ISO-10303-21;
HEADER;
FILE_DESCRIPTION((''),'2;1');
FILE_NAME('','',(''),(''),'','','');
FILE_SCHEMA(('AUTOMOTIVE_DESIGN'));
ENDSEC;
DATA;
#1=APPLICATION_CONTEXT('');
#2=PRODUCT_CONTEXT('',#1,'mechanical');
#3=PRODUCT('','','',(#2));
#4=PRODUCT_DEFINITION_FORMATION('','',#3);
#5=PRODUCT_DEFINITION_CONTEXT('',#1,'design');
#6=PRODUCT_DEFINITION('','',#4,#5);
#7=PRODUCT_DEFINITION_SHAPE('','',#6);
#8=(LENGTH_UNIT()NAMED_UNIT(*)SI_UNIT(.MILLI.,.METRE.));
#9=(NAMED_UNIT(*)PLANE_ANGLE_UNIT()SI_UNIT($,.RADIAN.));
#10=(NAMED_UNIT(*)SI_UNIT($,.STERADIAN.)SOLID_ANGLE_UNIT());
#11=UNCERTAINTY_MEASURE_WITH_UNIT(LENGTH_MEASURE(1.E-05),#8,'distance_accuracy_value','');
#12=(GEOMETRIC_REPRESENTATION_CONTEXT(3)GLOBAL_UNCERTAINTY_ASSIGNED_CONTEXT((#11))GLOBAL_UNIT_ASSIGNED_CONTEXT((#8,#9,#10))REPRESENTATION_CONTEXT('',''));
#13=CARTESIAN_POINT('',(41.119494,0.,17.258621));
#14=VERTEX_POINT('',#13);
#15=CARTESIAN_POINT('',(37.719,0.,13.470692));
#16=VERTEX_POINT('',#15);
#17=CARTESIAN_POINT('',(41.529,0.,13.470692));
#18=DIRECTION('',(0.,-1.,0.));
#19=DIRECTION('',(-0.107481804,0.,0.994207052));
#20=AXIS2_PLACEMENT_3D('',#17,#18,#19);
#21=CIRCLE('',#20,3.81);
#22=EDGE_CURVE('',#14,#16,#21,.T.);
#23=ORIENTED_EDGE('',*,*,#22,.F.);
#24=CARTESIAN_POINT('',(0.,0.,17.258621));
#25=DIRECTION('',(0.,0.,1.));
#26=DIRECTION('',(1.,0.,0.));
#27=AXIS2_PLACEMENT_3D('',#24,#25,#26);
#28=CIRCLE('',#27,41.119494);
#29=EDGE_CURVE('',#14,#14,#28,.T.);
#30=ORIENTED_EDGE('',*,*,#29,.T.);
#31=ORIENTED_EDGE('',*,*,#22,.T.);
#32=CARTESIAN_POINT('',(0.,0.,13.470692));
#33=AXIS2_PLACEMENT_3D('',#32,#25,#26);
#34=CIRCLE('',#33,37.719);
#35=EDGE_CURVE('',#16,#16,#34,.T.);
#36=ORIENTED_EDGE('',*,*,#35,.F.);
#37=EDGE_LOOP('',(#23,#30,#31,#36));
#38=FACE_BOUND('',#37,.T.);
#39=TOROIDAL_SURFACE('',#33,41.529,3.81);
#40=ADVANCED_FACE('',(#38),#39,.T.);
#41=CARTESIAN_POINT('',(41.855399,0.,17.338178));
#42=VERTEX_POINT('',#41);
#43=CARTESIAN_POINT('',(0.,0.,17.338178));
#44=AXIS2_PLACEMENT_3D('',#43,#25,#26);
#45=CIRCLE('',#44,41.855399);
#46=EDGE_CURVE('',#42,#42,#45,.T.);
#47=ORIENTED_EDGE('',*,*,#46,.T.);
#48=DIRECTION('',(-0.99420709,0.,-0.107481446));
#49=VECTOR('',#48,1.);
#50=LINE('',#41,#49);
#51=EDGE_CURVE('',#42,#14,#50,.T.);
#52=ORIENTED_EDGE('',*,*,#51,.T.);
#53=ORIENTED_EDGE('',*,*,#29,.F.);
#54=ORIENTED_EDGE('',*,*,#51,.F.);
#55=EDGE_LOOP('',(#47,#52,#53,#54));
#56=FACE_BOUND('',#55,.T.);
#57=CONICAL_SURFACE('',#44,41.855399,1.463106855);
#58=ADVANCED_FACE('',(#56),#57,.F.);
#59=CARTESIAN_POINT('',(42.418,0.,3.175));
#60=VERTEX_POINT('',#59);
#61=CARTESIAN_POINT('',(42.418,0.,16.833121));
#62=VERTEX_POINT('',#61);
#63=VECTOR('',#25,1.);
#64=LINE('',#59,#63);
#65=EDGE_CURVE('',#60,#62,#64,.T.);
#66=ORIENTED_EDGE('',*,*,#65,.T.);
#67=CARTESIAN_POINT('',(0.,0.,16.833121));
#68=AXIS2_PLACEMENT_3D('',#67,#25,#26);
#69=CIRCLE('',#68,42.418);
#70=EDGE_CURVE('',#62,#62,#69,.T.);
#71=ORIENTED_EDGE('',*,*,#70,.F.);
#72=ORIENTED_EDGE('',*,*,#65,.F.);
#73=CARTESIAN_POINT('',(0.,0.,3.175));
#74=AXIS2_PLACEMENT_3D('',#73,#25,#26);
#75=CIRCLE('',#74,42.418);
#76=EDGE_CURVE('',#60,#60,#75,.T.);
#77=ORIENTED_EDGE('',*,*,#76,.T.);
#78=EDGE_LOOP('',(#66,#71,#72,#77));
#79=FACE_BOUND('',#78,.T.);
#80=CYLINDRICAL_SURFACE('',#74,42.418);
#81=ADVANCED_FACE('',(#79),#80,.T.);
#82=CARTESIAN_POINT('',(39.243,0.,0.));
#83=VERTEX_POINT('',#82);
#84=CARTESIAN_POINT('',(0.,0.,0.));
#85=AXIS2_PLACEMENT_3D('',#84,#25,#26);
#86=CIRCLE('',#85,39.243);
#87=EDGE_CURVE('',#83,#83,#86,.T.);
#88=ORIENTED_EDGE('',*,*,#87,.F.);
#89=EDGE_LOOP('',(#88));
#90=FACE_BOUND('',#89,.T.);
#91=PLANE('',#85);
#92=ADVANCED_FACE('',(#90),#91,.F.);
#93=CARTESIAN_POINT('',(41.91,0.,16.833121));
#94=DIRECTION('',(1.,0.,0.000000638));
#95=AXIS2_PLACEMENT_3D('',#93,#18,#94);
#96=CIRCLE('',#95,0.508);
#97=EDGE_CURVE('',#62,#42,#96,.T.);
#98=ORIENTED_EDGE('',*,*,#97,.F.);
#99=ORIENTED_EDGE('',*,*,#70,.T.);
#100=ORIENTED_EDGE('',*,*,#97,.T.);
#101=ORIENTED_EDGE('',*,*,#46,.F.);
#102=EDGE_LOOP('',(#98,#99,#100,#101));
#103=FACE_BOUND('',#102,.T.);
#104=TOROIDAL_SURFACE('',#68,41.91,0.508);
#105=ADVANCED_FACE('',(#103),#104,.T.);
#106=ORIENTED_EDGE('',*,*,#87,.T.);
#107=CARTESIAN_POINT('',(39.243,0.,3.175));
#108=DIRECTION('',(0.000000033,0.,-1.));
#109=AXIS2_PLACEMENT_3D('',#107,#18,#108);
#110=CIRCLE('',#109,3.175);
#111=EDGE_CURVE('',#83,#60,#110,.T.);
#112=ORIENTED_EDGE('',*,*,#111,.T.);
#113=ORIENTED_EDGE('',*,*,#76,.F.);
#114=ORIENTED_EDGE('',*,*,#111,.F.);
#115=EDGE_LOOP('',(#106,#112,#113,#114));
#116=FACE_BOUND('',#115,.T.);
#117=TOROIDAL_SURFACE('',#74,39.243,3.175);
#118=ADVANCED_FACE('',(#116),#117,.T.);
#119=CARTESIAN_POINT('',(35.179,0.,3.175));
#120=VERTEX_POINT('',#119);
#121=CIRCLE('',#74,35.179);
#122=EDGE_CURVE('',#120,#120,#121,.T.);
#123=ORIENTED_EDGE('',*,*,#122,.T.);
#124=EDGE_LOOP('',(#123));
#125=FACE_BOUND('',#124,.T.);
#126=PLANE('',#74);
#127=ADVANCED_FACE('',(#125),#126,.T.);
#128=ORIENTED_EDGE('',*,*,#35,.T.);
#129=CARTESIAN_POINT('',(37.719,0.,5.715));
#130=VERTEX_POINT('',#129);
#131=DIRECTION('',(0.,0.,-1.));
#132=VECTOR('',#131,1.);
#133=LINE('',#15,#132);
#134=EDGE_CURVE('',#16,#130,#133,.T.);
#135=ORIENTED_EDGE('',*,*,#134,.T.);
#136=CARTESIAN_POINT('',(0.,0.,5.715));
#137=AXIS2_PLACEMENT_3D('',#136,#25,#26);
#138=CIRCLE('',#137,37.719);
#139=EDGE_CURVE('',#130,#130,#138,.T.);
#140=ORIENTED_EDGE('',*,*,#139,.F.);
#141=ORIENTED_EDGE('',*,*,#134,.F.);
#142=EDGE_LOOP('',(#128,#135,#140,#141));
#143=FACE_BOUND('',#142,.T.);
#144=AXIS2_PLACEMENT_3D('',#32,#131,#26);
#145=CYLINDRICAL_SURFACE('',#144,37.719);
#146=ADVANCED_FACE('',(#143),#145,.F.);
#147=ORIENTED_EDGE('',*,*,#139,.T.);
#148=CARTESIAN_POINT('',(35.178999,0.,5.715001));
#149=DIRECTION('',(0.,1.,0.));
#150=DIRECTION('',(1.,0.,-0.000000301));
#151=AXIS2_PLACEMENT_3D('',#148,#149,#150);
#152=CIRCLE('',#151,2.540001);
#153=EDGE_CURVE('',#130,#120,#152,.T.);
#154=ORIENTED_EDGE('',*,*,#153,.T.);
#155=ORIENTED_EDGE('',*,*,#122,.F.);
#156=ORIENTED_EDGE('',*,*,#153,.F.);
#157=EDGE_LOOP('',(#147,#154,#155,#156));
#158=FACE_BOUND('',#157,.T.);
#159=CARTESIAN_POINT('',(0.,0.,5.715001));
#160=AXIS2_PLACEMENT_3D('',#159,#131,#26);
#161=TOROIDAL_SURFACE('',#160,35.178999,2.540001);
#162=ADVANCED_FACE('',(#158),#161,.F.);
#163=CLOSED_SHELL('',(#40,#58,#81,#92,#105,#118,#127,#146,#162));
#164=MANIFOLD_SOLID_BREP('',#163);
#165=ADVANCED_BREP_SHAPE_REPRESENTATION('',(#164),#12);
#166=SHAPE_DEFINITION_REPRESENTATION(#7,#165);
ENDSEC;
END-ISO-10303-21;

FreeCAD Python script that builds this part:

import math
import FreeCAD as App
import Part
import Sketcher

V = App.Vector
Q = App.Units.Quantity

doc = App.newDocument("Part")
body = doc.addObject("PartDesign::Body", "Body")

# Sketch on XZ plane
sketch1 = doc.addObject("Sketcher::SketchObject", "Sketch")
body.addObject(sketch1)
sketch1.AttachmentSupport = (doc.XZ_Plane, [""])
sketch1.MapMode = "FlatFace"
sketch1.addGeometry([
    Part.LineSegment(V(0, 3.2, 0), V(0, 0, 0)),  # 0
    Part.LineSegment(V(0, 0, 0), V(39.2, 0, 0)),  # 1
    Part.ArcOfCircle(Part.Circle(V(39.2, 3.2, 0), V(0, 0, 1), 3.2), math.radians(-90), math.radians(0)),  # 2
    Part.LineSegment(V(42.4, 3.2, 0), V(42.4, 16.8, 0)),  # 3
    Part.ArcOfCircle(Part.Circle(V(41.9, 16.8, 0), V(0, 0, 1), 0.5), math.radians(0), math.radians(96)),  # 4
    Part.LineSegment(V(41.9, 17.3, 0), V(41.1, 17.3, 0)),  # 5
    Part.ArcOfCircle(Part.Circle(V(41.5, 13.5, 0), V(0, 0, 1), 3.8), math.radians(96), math.radians(180)),  # 6
    Part.LineSegment(V(37.7, 13.5, 0), V(37.7, 5.7, 0)),  # 7
    Part.ArcOfCircle(Part.Circle(V(35.2, 5.7, 0), V(0, 0, 1), 2.5), math.radians(-90), math.radians(0)),  # 8
    Part.LineSegment(V(35.2, 3.2, 0), V(0, 3.2, 0)),  # 9
], False)
sketch1.addConstraint([
    Sketcher.Constraint("Coincident", 0, 2, 1, 1),
    Sketcher.Constraint("Tangent", 1, 2, 2, 1),
    Sketcher.Constraint("Tangent", 2, 2, 3, 1),
    Sketcher.Constraint("Tangent", 3, 2, 4, 1),
    Sketcher.Constraint("Tangent", 4, 2, 5, 1),
    Sketcher.Constraint("Tangent", 5, 2, 6, 1),
    Sketcher.Constraint("Tangent", 6, 2, 7, 1),
    Sketcher.Constraint("Tangent", 7, 2, 8, 2),
    Sketcher.Constraint("Tangent", 8, 1, 9, 1),
    Sketcher.Constraint("Coincident", 9, 2, 0, 1),
    Sketcher.Constraint("Vertical", 0),
    Sketcher.Constraint("Horizontal", 1),
    Sketcher.Constraint("Vertical", 3),
    Sketcher.Constraint("Vertical", 7),
    Sketcher.Constraint("Horizontal", 9),
    Sketcher.Constraint("Coincident", 0, 2, -1, 1),
    Sketcher.Constraint("Horizontal", 2, 2, 8, 1),
    Sketcher.Constraint("Radius", 8, Q("0.1 in")),
    Sketcher.Constraint("Radius", 4, Q("0.02 in")),
    Sketcher.Constraint("Radius", 6, Q("0.15 in")),
    Sketcher.Constraint("Radius", 2, Q("0.125 in")),
    Sketcher.Constraint("DistanceX", 1, 1, 1, 2, Q("1.545 in")),
    Sketcher.Constraint("DistanceX", 9, 2, 9, 1, Q("1.385 in")),
    Sketcher.Constraint("DistanceY", 3, 1, 3, 2, 13.658121),
    Sketcher.Constraint("DistanceY", 7, 2, 7, 1, 7.755692),
])
revolution = doc.addObject("PartDesign::Revolution", "Revolution")
body.addObject(revolution)
revolution.Profile = sketch1
revolution.ReferenceAxis = (sketch1, ["V_Axis"])
revolution.Angle = 360

doc.recompute()
